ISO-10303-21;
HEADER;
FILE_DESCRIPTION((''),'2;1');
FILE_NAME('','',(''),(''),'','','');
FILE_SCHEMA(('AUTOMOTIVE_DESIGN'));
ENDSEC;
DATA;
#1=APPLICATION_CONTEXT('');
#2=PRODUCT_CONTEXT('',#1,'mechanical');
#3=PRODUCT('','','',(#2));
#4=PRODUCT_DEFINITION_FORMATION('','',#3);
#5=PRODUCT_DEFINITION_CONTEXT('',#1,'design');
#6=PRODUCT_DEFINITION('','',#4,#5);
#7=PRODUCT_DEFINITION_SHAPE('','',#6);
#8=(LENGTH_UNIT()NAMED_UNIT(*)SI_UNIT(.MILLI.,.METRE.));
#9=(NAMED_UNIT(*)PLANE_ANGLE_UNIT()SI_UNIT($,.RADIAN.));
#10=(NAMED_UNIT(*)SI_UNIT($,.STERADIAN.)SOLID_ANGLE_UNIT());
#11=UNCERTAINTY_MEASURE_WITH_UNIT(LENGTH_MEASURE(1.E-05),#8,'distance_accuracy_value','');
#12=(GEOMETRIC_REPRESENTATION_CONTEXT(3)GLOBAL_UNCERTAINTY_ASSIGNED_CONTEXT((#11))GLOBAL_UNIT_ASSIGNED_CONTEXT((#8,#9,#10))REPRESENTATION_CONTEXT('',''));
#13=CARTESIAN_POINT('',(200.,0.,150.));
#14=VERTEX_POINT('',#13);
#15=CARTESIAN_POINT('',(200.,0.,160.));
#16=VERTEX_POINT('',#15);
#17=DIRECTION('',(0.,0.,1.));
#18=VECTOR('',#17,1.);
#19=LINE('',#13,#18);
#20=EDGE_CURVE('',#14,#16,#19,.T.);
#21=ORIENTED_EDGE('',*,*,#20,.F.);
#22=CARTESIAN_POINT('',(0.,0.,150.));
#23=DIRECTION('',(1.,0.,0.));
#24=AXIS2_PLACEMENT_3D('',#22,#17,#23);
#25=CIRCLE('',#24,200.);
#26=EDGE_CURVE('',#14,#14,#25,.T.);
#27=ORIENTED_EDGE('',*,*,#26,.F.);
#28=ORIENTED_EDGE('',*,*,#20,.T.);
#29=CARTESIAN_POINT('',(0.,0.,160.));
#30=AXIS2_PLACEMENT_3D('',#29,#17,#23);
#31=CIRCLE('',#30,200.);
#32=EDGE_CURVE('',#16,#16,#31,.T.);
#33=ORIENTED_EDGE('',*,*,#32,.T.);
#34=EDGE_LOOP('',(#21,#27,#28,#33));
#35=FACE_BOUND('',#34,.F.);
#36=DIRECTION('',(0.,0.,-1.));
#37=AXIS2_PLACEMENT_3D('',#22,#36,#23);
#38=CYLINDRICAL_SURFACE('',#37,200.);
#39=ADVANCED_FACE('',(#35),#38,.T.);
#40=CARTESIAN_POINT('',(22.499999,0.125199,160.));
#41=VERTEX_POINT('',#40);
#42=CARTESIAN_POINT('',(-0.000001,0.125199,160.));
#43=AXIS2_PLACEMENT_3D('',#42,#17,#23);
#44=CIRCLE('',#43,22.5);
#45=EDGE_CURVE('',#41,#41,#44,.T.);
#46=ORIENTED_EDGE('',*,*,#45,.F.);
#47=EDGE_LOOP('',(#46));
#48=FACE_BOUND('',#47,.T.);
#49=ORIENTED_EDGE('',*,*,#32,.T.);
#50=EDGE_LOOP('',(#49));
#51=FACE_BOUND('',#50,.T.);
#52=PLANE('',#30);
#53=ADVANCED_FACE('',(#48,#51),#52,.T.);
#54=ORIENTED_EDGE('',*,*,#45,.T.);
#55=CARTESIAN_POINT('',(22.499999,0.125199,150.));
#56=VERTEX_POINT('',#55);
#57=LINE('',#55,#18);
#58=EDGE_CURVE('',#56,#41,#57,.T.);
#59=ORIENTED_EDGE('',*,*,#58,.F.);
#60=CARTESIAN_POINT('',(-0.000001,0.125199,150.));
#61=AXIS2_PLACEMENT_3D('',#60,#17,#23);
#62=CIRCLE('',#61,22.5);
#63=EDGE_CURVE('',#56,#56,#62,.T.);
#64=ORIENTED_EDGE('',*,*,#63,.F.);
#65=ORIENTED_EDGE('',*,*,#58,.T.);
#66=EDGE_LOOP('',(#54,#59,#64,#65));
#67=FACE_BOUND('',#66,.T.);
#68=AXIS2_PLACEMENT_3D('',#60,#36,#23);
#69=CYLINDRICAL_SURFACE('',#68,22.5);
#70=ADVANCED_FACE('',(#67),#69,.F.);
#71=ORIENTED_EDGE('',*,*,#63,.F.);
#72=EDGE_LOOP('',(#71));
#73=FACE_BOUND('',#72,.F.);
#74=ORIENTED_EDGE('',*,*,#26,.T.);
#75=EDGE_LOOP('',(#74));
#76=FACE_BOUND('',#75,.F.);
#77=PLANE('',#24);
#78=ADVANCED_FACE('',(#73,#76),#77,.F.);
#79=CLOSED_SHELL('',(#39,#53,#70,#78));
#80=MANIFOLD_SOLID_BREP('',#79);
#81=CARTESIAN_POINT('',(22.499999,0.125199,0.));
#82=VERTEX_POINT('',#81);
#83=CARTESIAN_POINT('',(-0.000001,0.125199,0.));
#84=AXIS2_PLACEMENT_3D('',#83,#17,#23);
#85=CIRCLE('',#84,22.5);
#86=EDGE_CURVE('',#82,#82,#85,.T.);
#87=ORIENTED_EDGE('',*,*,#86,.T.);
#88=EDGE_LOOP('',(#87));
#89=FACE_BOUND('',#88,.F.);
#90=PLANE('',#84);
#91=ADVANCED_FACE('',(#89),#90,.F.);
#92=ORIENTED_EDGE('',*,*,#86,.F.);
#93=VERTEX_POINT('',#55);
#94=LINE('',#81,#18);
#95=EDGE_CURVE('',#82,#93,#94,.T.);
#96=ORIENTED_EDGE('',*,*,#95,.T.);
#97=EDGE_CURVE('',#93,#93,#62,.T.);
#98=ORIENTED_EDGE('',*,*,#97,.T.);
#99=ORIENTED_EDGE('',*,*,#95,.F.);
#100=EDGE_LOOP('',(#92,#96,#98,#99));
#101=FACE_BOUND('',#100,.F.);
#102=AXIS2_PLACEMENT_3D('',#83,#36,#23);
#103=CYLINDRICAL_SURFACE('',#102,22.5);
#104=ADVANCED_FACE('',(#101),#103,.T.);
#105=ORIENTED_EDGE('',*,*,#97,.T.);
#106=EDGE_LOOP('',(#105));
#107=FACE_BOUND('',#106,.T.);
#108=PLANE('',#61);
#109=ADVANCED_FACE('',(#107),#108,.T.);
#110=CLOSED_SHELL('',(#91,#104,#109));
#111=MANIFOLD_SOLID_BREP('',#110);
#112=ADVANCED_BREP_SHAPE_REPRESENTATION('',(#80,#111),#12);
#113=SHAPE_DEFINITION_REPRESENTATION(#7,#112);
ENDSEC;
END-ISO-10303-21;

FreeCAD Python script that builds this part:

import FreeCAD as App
import Part
import Sketcher
Q = App.Units.Quantity

doc = App.newDocument("Part")
params = doc.addObject("Spreadsheet::Sheet", "Params")
for row, (alias, value) in enumerate([
    ("sketch1_diameter", "45 mm"),
    ("pad1_length", "150 mm"),
    ("sketch2_diameter", "400 mm"),
    ("sketch2_diameter2", "45 mm"),
    ("pad2_length", "10 mm"),
], start=1):
    params.set(f"A{row}", alias)
    params.set(f"B{row}", "=" + value)
    params.setAlias(f"B{row}", alias)

body = doc.addObject("PartDesign::Body", "Body")

# Sketch on XY plane
sketch1 = body.newObject("Sketcher::SketchObject", "Sketch")
sketch1.AttachmentSupport = (doc.getObject("XY_Plane"), [""])
sketch1.MapMode = "FlatFace"
sketch1.addGeometry(Part.Circle(App.Vector(0, 0, 0), App.Vector(0, 0, 1), 22), False)
sketch1.addConstraint([
    Sketcher.Constraint("PointOnObject", 0, 3, -2),
    Sketcher.Constraint("Diameter", 0, Q("45 mm")),
    Sketcher.Constraint("DistanceY", -1, 1, 0, 3, Q("0.125199 mm")),
])
sketch1.setExpression("Constraints[1]", "Params.sketch1_diameter")
pad1 = body.newObject("PartDesign::Pad", "Pad")
pad1.Profile = sketch1
pad1.setExpression("Length", "Params.pad1_length")
body2 = doc.addObject("PartDesign::Body", "Body001")

# Sketch on XY plane
sketch2 = body2.newObject("Sketcher::SketchObject", "Sketch001")
sketch2.AttachmentSupport = (doc.getObject("XY_Plane001"), [""])
sketch2.MapMode = "FlatFace"
sketch2.AttachmentOffset = App.Placement(App.Vector(0, 0, 150), App.Rotation())
sketch2.addGeometry([
    Part.Circle(App.Vector(0, 0, 0), App.Vector(0, 0, 1), 200),
    Part.Circle(App.Vector(0, 0, 0), App.Vector(0, 0, 1), 22),
], False)
sketch2.addConstraint([
    Sketcher.Constraint("Coincident", 0, 3, -1, 1),
    Sketcher.Constraint("PointOnObject", 1, 3, -2),
    Sketcher.Constraint("Diameter", 0, Q("400 mm")),
    Sketcher.Constraint("Diameter", 1, Q("45 mm")),
    Sketcher.Constraint("DistanceY", -1, 1, 1, 3, Q("0.125199 mm")),
])
sketch2.setExpression("Constraints[2]", "Params.sketch2_diameter")
sketch2.setExpression("Constraints[3]", "Params.sketch2_diameter2")
pad2 = body2.newObject("PartDesign::Pad", "Pad001")
pad2.Profile = sketch2
pad2.setExpression("Length", "Params.pad2_length")

doc.recompute()
